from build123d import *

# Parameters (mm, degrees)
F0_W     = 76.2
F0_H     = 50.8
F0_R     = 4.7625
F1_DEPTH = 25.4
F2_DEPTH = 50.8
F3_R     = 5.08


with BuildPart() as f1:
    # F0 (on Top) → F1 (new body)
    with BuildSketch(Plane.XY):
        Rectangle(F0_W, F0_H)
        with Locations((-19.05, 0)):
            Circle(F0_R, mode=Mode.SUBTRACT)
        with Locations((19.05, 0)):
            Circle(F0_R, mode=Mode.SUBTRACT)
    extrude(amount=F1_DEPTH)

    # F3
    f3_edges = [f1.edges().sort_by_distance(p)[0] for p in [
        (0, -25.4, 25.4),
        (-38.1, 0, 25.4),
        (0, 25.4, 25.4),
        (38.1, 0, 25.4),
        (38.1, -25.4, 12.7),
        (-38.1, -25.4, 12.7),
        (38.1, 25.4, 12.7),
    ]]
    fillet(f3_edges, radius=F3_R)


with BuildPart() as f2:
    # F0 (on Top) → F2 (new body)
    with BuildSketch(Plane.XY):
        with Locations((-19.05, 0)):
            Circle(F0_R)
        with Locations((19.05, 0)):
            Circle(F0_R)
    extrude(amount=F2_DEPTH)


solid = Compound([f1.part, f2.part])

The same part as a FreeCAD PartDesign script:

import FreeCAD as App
import Part
import Sketcher
Q = App.Units.Quantity


def edges_at(feature, points):
    """Names of the edges that pass closest to the given points."""
    edges = feature.Shape.Edges
    near = lambda p: min(range(len(edges)), key=lambda i: edges[i].distToShape(Part.Vertex(*p))[0])
    return sorted({f"Edge{near(p) + 1}" for p in points})


def add_polygon(sketch, points):
    """Adds a closed chain of lines whose ends are joined by coincident constraints."""
    first, n = sketch.GeometryCount, len(points)
    for a, b in zip(points, points[1:] + points[:1]):
        sketch.addGeometry(Part.LineSegment(App.Vector(*a, 0), App.Vector(*b, 0)), False)
    for i in range(n):
        sketch.addConstraint(Sketcher.Constraint("Coincident", first + i, 2, first + (i + 1) % n, 1))

doc = App.newDocument("Part")
body = doc.addObject("PartDesign::Body", "Body")

sketch1 = body.newObject("Sketcher::SketchObject", "Sketch")
sketch1.AttachmentSupport = (doc.getObject("XY_Plane"), [""])
sketch1.MapMode = "FlatFace"
add_polygon(sketch1, [(-38.1, 25.4), (-38.1, -25.4), (38.1, -25.4), (38.1, 25.4)])
sketch1.addGeometry(Part.Circle(App.Vector(-19.1, 0, 0), App.Vector(0, 0, 1), 4.8), False)
sketch1.addGeometry(Part.Circle(App.Vector(19.1, 0, 0), App.Vector(0, 0, 1), 4.8), False)
sketch1.addConstraint([
    Sketcher.Constraint("Vertical", 0),
    Sketcher.Constraint("Horizontal", 1),
    Sketcher.Constraint("Vertical", 2),
    Sketcher.Constraint("Horizontal", 3),
    Sketcher.Constraint("Equal", 4, 5),
    Sketcher.Constraint("Symmetric", 4, 3, 5, 3, -1, 1),
    Sketcher.Constraint("Symmetric", 0, 2, 2, 2, -1, 1),
    Sketcher.Constraint("PointOnObject", 4, 3, -1),
    Sketcher.Constraint("DistanceX", 1, 1, 1, 2, Q("3 in")),
    Sketcher.Constraint("DistanceY", 0, 2, 0, 1, Q("2 in")),
    Sketcher.Constraint("Diameter", 4, Q("0.375 in")),
    Sketcher.Constraint("DistanceX", 4, 3, 5, 3, Q("1.5 in")),
])
pad1 = body.newObject("PartDesign::Pad", "Pad")
pad1.Profile = sketch1
pad1.Length = Q("1 in")
doc.recompute()

fillet = body.newObject("PartDesign::Fillet", "Fillet")
fillet.Base = (pad1, edges_at(pad1, [
    (0, -25.4, 25.4),
    (-38.1, 0, 25.4),
    (0, 25.4, 25.4),
    (38.1, 0, 25.4),
    (38.1, -25.4, 12.7),
    (-38.1, -25.4, 12.7),
    (38.1, 25.4, 12.7),
]))
fillet.Radius = Q("0.2 in")
body2 = doc.addObject("PartDesign::Body", "Body001")
body2.AllowCompound = True

sketch2 = body2.newObject("Sketcher::SketchObject", "Sketch001")
sketch2.AttachmentSupport = (doc.getObject("XY_Plane001"), [""])
sketch2.MapMode = "FlatFace"
sketch2.addGeometry([
    Part.Circle(App.Vector(-19.1, 0, 0), App.Vector(0, 0, 1), 4.8),
    Part.Circle(App.Vector(19.1, 0, 0), App.Vector(0, 0, 1), 4.8),
], False)
sketch2.addConstraint([
    Sketcher.Constraint("Equal", 0, 1),
    Sketcher.Constraint("Symmetric", 0, 3, 1, 3, -1, 1),
    Sketcher.Constraint("PointOnObject", 0, 3, -1),
    Sketcher.Constraint("Diameter", 0, Q("0.375 in")),
    Sketcher.Constraint("DistanceX", 0, 3, 1, 3, Q("1.5 in")),
])
pad2 = body2.newObject("PartDesign::Pad", "Pad001")
pad2.Profile = sketch2
pad2.Length = Q("2 in")

doc.recompute()
